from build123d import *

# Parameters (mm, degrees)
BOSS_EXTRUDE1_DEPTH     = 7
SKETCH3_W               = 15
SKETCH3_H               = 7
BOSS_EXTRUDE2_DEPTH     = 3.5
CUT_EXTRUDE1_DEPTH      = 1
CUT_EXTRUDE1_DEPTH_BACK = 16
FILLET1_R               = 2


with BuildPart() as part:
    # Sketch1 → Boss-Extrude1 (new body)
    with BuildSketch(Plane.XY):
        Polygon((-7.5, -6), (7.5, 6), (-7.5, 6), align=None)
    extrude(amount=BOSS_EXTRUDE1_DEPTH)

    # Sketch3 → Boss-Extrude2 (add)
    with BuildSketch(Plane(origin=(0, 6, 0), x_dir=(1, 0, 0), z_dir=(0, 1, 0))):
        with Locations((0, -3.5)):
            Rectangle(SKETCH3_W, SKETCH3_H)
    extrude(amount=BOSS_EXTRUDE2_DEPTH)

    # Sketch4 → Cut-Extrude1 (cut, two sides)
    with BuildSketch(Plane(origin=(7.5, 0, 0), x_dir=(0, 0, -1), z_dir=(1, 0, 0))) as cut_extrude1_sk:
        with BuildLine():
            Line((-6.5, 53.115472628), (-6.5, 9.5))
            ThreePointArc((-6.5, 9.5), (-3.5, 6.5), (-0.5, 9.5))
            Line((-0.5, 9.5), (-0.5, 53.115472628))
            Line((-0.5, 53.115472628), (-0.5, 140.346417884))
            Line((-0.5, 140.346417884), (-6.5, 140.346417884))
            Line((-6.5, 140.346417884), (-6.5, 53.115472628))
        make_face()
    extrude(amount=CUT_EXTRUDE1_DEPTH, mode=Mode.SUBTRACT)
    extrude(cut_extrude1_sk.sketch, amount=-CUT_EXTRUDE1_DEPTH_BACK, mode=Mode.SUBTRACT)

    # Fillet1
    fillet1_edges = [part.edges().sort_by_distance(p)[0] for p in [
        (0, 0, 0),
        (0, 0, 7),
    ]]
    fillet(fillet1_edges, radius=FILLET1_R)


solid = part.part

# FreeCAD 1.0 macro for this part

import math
import FreeCAD as App
import Part
import Sketcher
from FreeCAD import Vector
Q = App.Units.Quantity


def edges_at(feature, points):
    """Names of the edges that pass closest to the given points."""
    edges = feature.Shape.Edges
    near = lambda p: min(range(len(edges)), key=lambda i: edges[i].distToShape(Part.Vertex(*p))[0])
    return sorted({f"Edge{near(p) + 1}" for p in points})

doc = App.newDocument("Part")
body = doc.addObject("PartDesign::Body", "Body")

# Sketch on XY plane
sketch1 = body.newObject("Sketcher::SketchObject", "Sketch")
sketch1.AttachmentSupport = (doc.getObject("XY_Plane"), [""])
sketch1.MapMode = "FlatFace"
sketch1.addGeometry([
    Part.LineSegment(Vector(-8, -6, 0), Vector(8, 6, 0)),
    Part.LineSegment(Vector(8, 6, 0), Vector(-8, 6, 0)),
    Part.LineSegment(Vector(-8, 6, 0), Vector(-8, -6, 0)),
], False)
sketch1.addConstraint([
    Sketcher.Constraint("Coincident", 0, 2, 1, 1),
    Sketcher.Constraint("Coincident", 1, 2, 2, 1),
    Sketcher.Constraint("Coincident", 2, 2, 0, 1),
    Sketcher.Constraint("Horizontal", 1),
    Sketcher.Constraint("Vertical", 2),
    Sketcher.Constraint("Symmetric", 0, 2, 2, 2, -1, 1),
    Sketcher.Constraint("DistanceX", 1, 2, 1, 1, Q("15 mm")),
    Sketcher.Constraint("DistanceY", 2, 2, 2, 1, Q("12 mm")),
])
pad1 = body.newObject("PartDesign::Pad", "Pad")
pad1.Profile = sketch1
pad1.Length = 7

# Sketch on XZ plane
sketch2 = body.newObject("Sketcher::SketchObject", "Sketch001")
sketch2.AttachmentSupport = (doc.getObject("XZ_Plane"), [""])
sketch2.MapMode = "FlatFace"
sketch2.AttachmentOffset = App.Placement(Vector(0, 0, -6), App.Rotation())
sketch2.addGeometry([
    Part.LineSegment(Vector(-8, 0, 0), Vector(-8, 7, 0)),
    Part.LineSegment(Vector(-8, 7, 0), Vector(8, 7, 0)),
    Part.LineSegment(Vector(8, 7, 0), Vector(8, 0, 0)),
    Part.LineSegment(Vector(8, 0, 0), Vector(-8, 0, 0)),
], False)
sketch2.addConstraint([
    Sketcher.Constraint("Coincident", 0, 2, 1, 1),
    Sketcher.Constraint("Coincident", 1, 2, 2, 1),
    Sketcher.Constraint("Coincident", 2, 2, 3, 1),
    Sketcher.Constraint("Coincident", 3, 2, 0, 1),
    Sketcher.Constraint("Vertical", 0),
    Sketcher.Constraint("Horizontal", 1),
    Sketcher.Constraint("Vertical", 2),
    Sketcher.Constraint("Horizontal", 3),
    Sketcher.Constraint("Symmetric", 2, 2, 3, 2, -1, 1),
    Sketcher.Constraint("DistanceX", 1, 1, 1, 2, Q("15 mm")),
    Sketcher.Constraint("DistanceY", 0, 1, 0, 2, Q("7 mm")),
])
pad2 = body.newObject("PartDesign::Pad", "Pad001")
pad2.Profile = sketch2
pad2.Length = 3.5
pad2.Reversed = True

# Sketch on YZ plane
sketch3 = body.newObject("Sketcher::SketchObject", "Sketch002")
sketch3.AttachmentSupport = (doc.getObject("YZ_Plane"), [""])
sketch3.MapMode = "FlatFace"
sketch3.AttachmentOffset = App.Placement(Vector(0, 0, 7.5), App.Rotation())
sketch3.addGeometry([
    Part.ArcOfCircle(Part.Circle(Vector(9.5, 3.5, 0), Vector(0, 0, 1), 3), math.radians(90), math.radians(270)),
    Part.LineSegment(Vector(9.5, 0.5, 0), Vector(140.3, 0.5, 0)),
    Part.LineSegment(Vector(140.3, 0.5, 0), Vector(140.3, 6.5, 0)),
    Part.LineSegment(Vector(140.3, 6.5, 0), Vector(9.5, 6.5, 0)),
], False)
sketch3.addConstraint([
    Sketcher.Constraint("Tangent", 0, 2, 1, 1),
    Sketcher.Constraint("Coincident", 1, 2, 2, 1),
    Sketcher.Constraint("Coincident", 2, 2, 3, 1),
    Sketcher.Constraint("Tangent", 3, 2, 0, 1),
    Sketcher.Constraint("Horizontal", 1),
    Sketcher.Constraint("Vertical", 2),
    Sketcher.Constraint("Horizontal", 3),
    Sketcher.Constraint("Radius", 0, Q("3 mm")),
    Sketcher.Constraint("DistanceX", -1, 1, 0, 3, Q("9.5 mm")),
    Sketcher.Constraint("DistanceY", -1, 1, 0, 3, Q("3.5 mm")),
    Sketcher.Constraint("DistanceX", 1, 1, 1, 2, Q("130.846418 mm")),
])
pocket1 = body.newObject("PartDesign::Pocket", "Pocket")
pocket1.Profile = sketch3
pocket1.Type = "ThroughAll"
pocket1.Midplane = True
doc.recompute()

fillet = body.newObject("PartDesign::Fillet", "Fillet")
fillet.Base = (pocket1, edges_at(pocket1, [(0, 0, 0), (0, 0, 7)]))
fillet.Radius = 2

doc.recompute()
